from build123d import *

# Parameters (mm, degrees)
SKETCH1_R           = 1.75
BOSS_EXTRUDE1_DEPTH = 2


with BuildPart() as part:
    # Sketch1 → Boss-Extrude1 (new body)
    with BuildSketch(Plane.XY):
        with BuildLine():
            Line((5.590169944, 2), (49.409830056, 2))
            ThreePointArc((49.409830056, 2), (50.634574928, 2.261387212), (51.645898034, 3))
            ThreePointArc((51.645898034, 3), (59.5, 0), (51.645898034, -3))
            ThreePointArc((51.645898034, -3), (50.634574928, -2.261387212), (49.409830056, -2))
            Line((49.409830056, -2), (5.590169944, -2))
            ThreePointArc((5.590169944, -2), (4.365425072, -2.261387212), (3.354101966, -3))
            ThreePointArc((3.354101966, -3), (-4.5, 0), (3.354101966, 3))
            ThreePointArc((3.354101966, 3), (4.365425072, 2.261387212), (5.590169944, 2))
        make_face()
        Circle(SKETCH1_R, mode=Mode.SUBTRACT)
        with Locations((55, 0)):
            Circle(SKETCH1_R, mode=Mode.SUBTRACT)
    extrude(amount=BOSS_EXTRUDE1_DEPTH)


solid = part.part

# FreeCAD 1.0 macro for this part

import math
import FreeCAD as App
import Part
import Sketcher

V = App.Vector
Q = App.Units.Quantity

doc = App.newDocument("Part")
params = doc.addObject("Spreadsheet::Sheet", "Params")
for row, (alias, value) in enumerate([
    ("sketch1_radius", "3 mm"),
    ("sketch1_diameter", "3.5 mm"),
    ("sketch1_radius2", "4.5 mm"),
    ("pad1_length", "2 mm"),
], start=1):
    params.set(f"A{row}", alias)
    params.set(f"B{row}", "=" + value)
    params.setAlias(f"B{row}", alias)

body = doc.addObject("PartDesign::Body", "Body")

# Sketch on XY plane
sketch1 = body.newObject("Sketcher::SketchObject", "Sketch")
sketch1.AttachmentSupport = (doc.getObject("XY_Plane"), [""])
sketch1.MapMode = "FlatFace"
sketch1.addGeometry([
    Part.LineSegment(V(49.40983, 2, 0), V(5.59017, 2, 0)),  # 0
    Part.ArcOfCircle(Part.Circle(V(5.59017, 5, 0), V(0, 0, 1), 3), math.radians(-138.189685), math.radians(-90)),  # 1
    Part.ArcOfCircle(Part.Circle(V(0, 0, 0), V(0, 0, 1), 4.5), math.radians(41.810315), math.radians(318.189685)),  # 2
    Part.ArcOfCircle(Part.Circle(V(5.59017, -5, 0), V(0, 0, 1), 3), math.radians(90), math.radians(138.189685)),  # 3
    Part.LineSegment(V(5.59017, -2, 0), V(49.40983, -2, 0)),  # 4
    Part.ArcOfCircle(Part.Circle(V(49.40983, -5, 0), V(0, 0, 1), 3), math.radians(41.810315), math.radians(90)),  # 5
    Part.ArcOfCircle(Part.Circle(V(55, 0, 0), V(0, 0, 1), 4.5), math.radians(-138.189685), math.radians(138.189685)),  # 6
    Part.ArcOfCircle(Part.Circle(V(49.40983, 5, 0), V(0, 0, 1), 3), math.radians(-90), math.radians(-41.810315)),  # 7
    Part.Circle(V(55, 0, 0), V(0, 0, 1), 1.75),  # 8
    Part.Circle(V(0, 0, 0), V(0, 0, 1), 1.75),  # 9
], False)
sketch1.addConstraint([
    Sketcher.Constraint("Tangent", 0, 2, 1, 2),
    Sketcher.Constraint("Tangent", 1, 1, 2, 1),
    Sketcher.Constraint("Tangent", 2, 2, 3, 2),
    Sketcher.Constraint("Tangent", 3, 1, 4, 1),
    Sketcher.Constraint("Tangent", 4, 2, 5, 2),
    Sketcher.Constraint("Tangent", 5, 1, 6, 1),
    Sketcher.Constraint("Tangent", 6, 2, 7, 2),
    Sketcher.Constraint("Tangent", 7, 1, 0, 1),
    Sketcher.Constraint("Horizontal", 0),
    Sketcher.Constraint("Horizontal", 4),
    Sketcher.Constraint("Coincident", 2, 3, -1, 1),
    Sketcher.Constraint("Coincident", 9, 3, -1, 1),
    Sketcher.Constraint("Coincident", 8, 3, 6, 3),
    Sketcher.Constraint("Equal", 1, 3),
    Sketcher.Constraint("Equal", 3, 5),
    Sketcher.Constraint("Equal", 2, 6),
    Sketcher.Constraint("Equal", 5, 7),
    Sketcher.Constraint("Equal", 8, 9),
    Sketcher.Constraint("Symmetric", 5, 3, 7, 3, -1),
    Sketcher.Constraint("Radius", 1, Q("3 mm")),
    Sketcher.Constraint("Diameter", 8, Q("3.5 mm")),
    Sketcher.Constraint("Radius", 2, Q("4.5 mm")),
    Sketcher.Constraint("DistanceY", -1, 1, 1, 3, Q("5 mm")),
    Sketcher.Constraint("DistanceX", -1, 1, 6, 3, Q("55 mm")),
])
sketch1.setExpression("Constraints[19]", "Params.sketch1_radius")
sketch1.setExpression("Constraints[20]", "Params.sketch1_diameter")
sketch1.setExpression("Constraints[21]", "Params.sketch1_radius2")
pad1 = body.newObject("PartDesign::Pad", "Pad")
pad1.Profile = sketch1
pad1.setExpression("Length", "Params.pad1_length")

doc.recompute()
